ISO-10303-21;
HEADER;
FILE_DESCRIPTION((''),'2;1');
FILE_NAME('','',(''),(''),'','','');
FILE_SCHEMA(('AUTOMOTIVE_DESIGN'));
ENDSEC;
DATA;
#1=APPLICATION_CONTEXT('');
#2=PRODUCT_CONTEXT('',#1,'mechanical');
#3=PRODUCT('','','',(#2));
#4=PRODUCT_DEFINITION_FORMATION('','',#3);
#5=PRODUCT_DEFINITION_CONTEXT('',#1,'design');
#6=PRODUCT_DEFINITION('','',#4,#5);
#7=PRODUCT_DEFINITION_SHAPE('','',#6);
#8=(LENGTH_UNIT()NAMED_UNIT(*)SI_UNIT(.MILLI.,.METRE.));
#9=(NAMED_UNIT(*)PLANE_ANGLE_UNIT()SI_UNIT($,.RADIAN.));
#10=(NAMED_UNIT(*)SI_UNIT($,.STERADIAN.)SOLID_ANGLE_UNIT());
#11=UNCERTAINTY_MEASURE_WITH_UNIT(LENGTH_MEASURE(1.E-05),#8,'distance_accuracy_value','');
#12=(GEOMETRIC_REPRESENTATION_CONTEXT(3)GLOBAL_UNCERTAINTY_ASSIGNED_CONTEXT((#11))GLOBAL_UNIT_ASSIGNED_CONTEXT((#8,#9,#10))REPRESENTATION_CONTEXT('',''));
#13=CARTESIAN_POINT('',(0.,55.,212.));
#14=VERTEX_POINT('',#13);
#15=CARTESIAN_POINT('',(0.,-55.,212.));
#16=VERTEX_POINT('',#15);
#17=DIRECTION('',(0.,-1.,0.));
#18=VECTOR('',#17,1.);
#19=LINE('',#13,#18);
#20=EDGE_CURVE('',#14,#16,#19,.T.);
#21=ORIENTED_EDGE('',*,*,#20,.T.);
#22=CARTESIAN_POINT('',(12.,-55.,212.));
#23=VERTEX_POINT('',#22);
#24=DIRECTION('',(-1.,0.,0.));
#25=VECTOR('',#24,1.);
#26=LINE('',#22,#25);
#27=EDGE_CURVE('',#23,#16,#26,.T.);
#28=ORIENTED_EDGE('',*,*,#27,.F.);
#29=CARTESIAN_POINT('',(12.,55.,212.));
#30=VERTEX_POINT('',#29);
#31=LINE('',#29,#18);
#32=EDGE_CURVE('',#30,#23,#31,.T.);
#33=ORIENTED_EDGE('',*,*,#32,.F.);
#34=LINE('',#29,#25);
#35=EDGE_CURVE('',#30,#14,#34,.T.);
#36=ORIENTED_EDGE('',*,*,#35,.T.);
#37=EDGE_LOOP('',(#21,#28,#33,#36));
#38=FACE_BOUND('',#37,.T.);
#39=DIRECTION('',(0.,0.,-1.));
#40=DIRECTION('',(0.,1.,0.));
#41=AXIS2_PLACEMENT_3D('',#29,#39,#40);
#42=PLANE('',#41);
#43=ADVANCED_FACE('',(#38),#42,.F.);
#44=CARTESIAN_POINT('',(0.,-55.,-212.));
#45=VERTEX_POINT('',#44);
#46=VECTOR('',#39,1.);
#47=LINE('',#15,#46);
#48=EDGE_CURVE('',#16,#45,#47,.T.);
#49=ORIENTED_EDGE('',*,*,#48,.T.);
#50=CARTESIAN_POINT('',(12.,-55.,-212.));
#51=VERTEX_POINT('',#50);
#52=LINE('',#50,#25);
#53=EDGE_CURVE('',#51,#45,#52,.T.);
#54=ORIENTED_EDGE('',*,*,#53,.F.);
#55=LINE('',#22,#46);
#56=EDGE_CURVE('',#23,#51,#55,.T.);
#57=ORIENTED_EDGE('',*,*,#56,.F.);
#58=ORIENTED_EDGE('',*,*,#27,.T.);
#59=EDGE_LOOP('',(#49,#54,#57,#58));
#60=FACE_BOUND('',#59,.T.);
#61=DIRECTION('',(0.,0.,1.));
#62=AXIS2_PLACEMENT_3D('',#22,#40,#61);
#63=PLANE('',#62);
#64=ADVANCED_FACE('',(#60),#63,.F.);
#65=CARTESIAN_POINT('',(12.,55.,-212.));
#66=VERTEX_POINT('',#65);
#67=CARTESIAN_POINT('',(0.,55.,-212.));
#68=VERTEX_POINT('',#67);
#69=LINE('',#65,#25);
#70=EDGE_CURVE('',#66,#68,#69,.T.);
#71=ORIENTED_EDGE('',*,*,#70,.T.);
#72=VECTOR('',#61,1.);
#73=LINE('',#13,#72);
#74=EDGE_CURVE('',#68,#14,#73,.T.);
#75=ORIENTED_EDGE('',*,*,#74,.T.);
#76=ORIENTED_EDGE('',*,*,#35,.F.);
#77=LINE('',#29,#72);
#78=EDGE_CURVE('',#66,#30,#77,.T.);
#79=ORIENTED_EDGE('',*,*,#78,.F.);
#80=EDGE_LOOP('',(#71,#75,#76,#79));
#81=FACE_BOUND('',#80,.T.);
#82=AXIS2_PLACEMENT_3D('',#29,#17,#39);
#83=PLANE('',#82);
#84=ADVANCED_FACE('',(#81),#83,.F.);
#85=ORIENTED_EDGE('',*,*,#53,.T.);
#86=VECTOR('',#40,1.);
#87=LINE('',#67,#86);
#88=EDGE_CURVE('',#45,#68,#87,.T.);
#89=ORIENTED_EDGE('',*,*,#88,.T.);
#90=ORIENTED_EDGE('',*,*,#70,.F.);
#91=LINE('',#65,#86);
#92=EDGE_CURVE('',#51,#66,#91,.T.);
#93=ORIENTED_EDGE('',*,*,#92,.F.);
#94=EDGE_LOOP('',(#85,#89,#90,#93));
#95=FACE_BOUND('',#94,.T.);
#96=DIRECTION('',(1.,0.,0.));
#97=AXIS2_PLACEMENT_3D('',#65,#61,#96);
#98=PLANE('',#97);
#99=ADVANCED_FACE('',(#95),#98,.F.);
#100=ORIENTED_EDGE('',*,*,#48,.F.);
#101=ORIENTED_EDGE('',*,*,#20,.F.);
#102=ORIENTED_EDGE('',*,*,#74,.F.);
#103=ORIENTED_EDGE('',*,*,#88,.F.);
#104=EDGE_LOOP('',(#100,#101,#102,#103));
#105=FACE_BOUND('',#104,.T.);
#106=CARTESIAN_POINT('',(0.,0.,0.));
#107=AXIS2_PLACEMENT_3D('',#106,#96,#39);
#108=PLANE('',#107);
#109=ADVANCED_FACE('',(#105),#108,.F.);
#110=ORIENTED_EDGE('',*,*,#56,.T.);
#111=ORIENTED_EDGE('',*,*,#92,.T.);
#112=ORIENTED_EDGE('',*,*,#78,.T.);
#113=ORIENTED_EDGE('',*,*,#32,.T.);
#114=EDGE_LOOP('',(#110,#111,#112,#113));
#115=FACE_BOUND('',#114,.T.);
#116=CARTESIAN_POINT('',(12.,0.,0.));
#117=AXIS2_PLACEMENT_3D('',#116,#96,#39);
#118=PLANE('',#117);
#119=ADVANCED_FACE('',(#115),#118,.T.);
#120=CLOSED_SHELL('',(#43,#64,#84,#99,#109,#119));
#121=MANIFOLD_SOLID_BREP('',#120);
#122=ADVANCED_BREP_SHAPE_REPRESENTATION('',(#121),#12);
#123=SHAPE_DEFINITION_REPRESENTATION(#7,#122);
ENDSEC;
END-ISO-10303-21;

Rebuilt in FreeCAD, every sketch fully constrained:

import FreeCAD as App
import Part
import Sketcher

V = App.Vector
Q = App.Units.Quantity

doc = App.newDocument("Part")
params = doc.addObject("Spreadsheet::Sheet", "Params")
for row, (alias, value) in enumerate([
    ("sketch1_width", "110 mm"),
    ("sketch1_height", "424 mm"),
    ("pad1_length", "12 mm"),
], start=1):
    params.set(f"A{row}", alias)
    params.set(f"B{row}", "=" + value)
    params.setAlias(f"B{row}", alias)

body = doc.addObject("PartDesign::Body", "Body")

sketch1 = body.newObject("Sketcher::SketchObject", "Sketch")
sketch1.AttachmentSupport = (doc.getObject("YZ_Plane"), [""])
sketch1.MapMode = "FlatFace"
sketch1.addGeometry([
    Part.LineSegment(V(55, 212, 0), V(-55, 212, 0)),
    Part.LineSegment(V(-55, 212, 0), V(-55, -212, 0)),
    Part.LineSegment(V(-55, -212, 0), V(55, -212, 0)),
    Part.LineSegment(V(55, -212, 0), V(55, 212, 0)),
], False)
sketch1.addConstraint([
    Sketcher.Constraint("Coincident", 0, 2, 1, 1),
    Sketcher.Constraint("Coincident", 1, 2, 2, 1),
    Sketcher.Constraint("Coincident", 2, 2, 3, 1),
    Sketcher.Constraint("Coincident", 3, 2, 0, 1),
    Sketcher.Constraint("Horizontal", 0),
    Sketcher.Constraint("Vertical", 1),
    Sketcher.Constraint("Horizontal", 2),
    Sketcher.Constraint("Vertical", 3),
    Sketcher.Constraint("Symmetric", 0, 2, 2, 2, -1, 1),
    Sketcher.Constraint("DistanceX", 0, 2, 0, 1, Q("110 mm")),
    Sketcher.Constraint("DistanceY", 1, 2, 1, 1, Q("424 mm")),
])
sketch1.setExpression("Constraints[9]", "Params.sketch1_width")
sketch1.setExpression("Constraints[10]", "Params.sketch1_height")
pad1 = body.newObject("PartDesign::Pad", "Pad")
pad1.Profile = sketch1
pad1.setExpression("Length", "Params.pad1_length")

doc.recompute()
